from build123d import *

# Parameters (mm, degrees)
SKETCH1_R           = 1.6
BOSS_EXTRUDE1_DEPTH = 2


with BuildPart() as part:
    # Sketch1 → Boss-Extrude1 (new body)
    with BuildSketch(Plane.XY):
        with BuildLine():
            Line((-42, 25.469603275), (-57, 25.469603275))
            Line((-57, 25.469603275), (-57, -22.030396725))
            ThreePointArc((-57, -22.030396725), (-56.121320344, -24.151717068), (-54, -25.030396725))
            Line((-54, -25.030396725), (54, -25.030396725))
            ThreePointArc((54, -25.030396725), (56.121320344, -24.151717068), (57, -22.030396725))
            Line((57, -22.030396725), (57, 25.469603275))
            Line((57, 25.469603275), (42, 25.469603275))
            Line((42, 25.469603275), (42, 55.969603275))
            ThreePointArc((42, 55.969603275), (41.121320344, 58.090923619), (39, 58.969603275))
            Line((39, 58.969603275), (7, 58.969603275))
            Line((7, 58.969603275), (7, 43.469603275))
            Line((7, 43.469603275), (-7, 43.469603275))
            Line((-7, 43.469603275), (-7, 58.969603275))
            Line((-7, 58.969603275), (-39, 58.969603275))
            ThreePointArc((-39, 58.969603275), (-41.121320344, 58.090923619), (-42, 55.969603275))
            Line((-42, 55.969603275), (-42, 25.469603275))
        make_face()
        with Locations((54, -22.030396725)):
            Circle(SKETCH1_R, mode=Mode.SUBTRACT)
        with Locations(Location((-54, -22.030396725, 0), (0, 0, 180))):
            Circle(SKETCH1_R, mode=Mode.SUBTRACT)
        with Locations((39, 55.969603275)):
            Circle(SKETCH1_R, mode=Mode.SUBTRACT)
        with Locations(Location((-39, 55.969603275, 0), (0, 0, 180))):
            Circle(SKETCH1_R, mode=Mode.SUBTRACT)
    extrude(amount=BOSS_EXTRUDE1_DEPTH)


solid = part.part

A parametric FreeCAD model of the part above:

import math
import FreeCAD as App
import Part
import Sketcher

V = App.Vector
Q = App.Units.Quantity

doc = App.newDocument("Part")
params = doc.addObject("Spreadsheet::Sheet", "Params")
for row, (alias, value) in enumerate([
    ("sketch1_radius", "3 mm"),
    ("sketch1_diameter", "3.2 mm"),
    ("sketch1_width", "15 mm"),
    ("sketch1_width2", "108 mm"),
    ("sketch1_width3", "32 mm"),
    ("pad1_length", "2 mm"),
], start=1):
    params.set(f"A{row}", alias)
    params.set(f"B{row}", "=" + value)
    params.setAlias(f"B{row}", alias)

body = doc.addObject("PartDesign::Body", "Body")

sketch1 = body.newObject("Sketcher::SketchObject", "Sketch")
sketch1.AttachmentSupport = (doc.getObject("XY_Plane"), [""])
sketch1.MapMode = "FlatFace"
sketch1.addGeometry([
    Part.LineSegment(V(-42, 25.469603, 0), V(-57, 25.469603, 0)),
    Part.LineSegment(V(-57, 25.469603, 0), V(-57, -22.030397, 0)),
    Part.ArcOfCircle(Part.Circle(V(-54, -22.030397, 0), V(0, 0, 1), 3), math.radians(180), math.radians(270)),
    Part.LineSegment(V(-54, -25.030397, 0), V(54, -25.030397, 0)),
    Part.ArcOfCircle(Part.Circle(V(54, -22.030397, 0), V(0, 0, 1), 3), math.radians(-90), math.radians(0)),
    Part.LineSegment(V(57, -22.030397, 0), V(57, 25.469603, 0)),
    Part.LineSegment(V(57, 25.469603, 0), V(42, 25.469603, 0)),
    Part.LineSegment(V(42, 25.469603, 0), V(42, 55.969603, 0)),
    Part.ArcOfCircle(Part.Circle(V(39, 55.969603, 0), V(0, 0, 1), 3), math.radians(0), math.radians(90)),
    Part.LineSegment(V(39, 58.969603, 0), V(7, 58.969603, 0)),
    Part.LineSegment(V(7, 58.969603, 0), V(7, 43.469603, 0)),
    Part.LineSegment(V(7, 43.469603, 0), V(-7, 43.469603, 0)),
    Part.LineSegment(V(-7, 43.469603, 0), V(-7, 58.969603, 0)),
    Part.LineSegment(V(-7, 58.969603, 0), V(-39, 58.969603, 0)),
    Part.ArcOfCircle(Part.Circle(V(-39, 55.969603, 0), V(0, 0, 1), 3), math.radians(90), math.radians(180)),
    Part.LineSegment(V(-42, 55.969603, 0), V(-42, 25.469603, 0)),
    Part.Circle(V(-54, -22.030397, 0), V(0, 0, 1), 1.6),
    Part.Circle(V(54, -22.030397, 0), V(0, 0, 1), 1.6),
    Part.Circle(V(-39, 55.969603, 0), V(0, 0, 1), 1.6),
    Part.Circle(V(39, 55.969603, 0), V(0, 0, 1), 1.6),
], False)
sketch1.addConstraint([
    Sketcher.Constraint("Coincident", 0, 2, 1, 1),
    Sketcher.Constraint("Tangent", 1, 2, 2, 1),
    Sketcher.Constraint("Tangent", 2, 2, 3, 1),
    Sketcher.Constraint("Tangent", 3, 2, 4, 1),
    Sketcher.Constraint("Tangent", 4, 2, 5, 1),
    Sketcher.Constraint("Coincident", 5, 2, 6, 1),
    Sketcher.Constraint("Coincident", 6, 2, 7, 1),
    Sketcher.Constraint("Tangent", 7, 2, 8, 1),
    Sketcher.Constraint("Tangent", 8, 2, 9, 1),
    Sketcher.Constraint("Coincident", 9, 2, 10, 1),
    Sketcher.Constraint("Coincident", 10, 2, 11, 1),
    Sketcher.Constraint("Coincident", 11, 2, 12, 1),
    Sketcher.Constraint("Coincident", 12, 2, 13, 1),
    Sketcher.Constraint("Tangent", 13, 2, 14, 1),
    Sketcher.Constraint("Tangent", 14, 2, 15, 1),
    Sketcher.Constraint("Coincident", 15, 2, 0, 1),
    Sketcher.Constraint("Horizontal", 0),
    Sketcher.Constraint("Vertical", 1),
    Sketcher.Constraint("Horizontal", 3),
    Sketcher.Constraint("Vertical", 5),
    Sketcher.Constraint("Horizontal", 6),
    Sketcher.Constraint("Vertical", 7),
    Sketcher.Constraint("Horizontal", 9),
    Sketcher.Constraint("Vertical", 10),
    Sketcher.Constraint("Horizontal", 11),
    Sketcher.Constraint("Vertical", 12),
    Sketcher.Constraint("Horizontal", 13),
    Sketcher.Constraint("Vertical", 15),
    Sketcher.Constraint("Coincident", 16, 3, 2, 3),
    Sketcher.Constraint("Coincident", 17, 3, 4, 3),
    Sketcher.Constraint("Coincident", 18, 3, 14, 3),
    Sketcher.Constraint("Coincident", 19, 3, 8, 3),
    Sketcher.Constraint("Equal", 2, 4),
    Sketcher.Constraint("Equal", 4, 8),
    Sketcher.Constraint("Equal", 8, 14),
    Sketcher.Constraint("Equal", 16, 17),
    Sketcher.Constraint("Equal", 17, 18),
    Sketcher.Constraint("Equal", 18, 19),
    Sketcher.Constraint("Symmetric", 8, 3, 14, 3, -2),
    Sketcher.Constraint("Symmetric", 0, 2, 5, 2, -2),
    Sketcher.Constraint("Equal", 9, 13),
    Sketcher.Constraint("Radius", 2, Q("3 mm")),
    Sketcher.Constraint("Diameter", 16, Q("3.2 mm")),
    Sketcher.Constraint("DistanceX", 0, 2, 0, 1, Q("15 mm")),
    Sketcher.Constraint("DistanceX", 3, 1, 3, 2, Q("108 mm")),
    Sketcher.Constraint("DistanceX", 9, 2, 9, 1, Q("32 mm")),
    Sketcher.Constraint("DistanceY", 1, 2, 1, 1, Q("47.5 mm")),
    Sketcher.Constraint("DistanceY", 7, 1, 7, 2, Q("30.5 mm")),
    Sketcher.Constraint("DistanceY", 10, 2, 10, 1, Q("15.5 mm")),
    Sketcher.Constraint("DistanceY", 2, 3, -1, 1, Q("22.030397 mm")),
])
sketch1.setExpression("Constraints[41]", "Params.sketch1_radius")
sketch1.setExpression("Constraints[42]", "Params.sketch1_diameter")
sketch1.setExpression("Constraints[43]", "Params.sketch1_width")
sketch1.setExpression("Constraints[44]", "Params.sketch1_width2")
sketch1.setExpression("Constraints[45]", "Params.sketch1_width3")
pad1 = body.newObject("PartDesign::Pad", "Pad")
pad1.Profile = sketch1
pad1.setExpression("Length", "Params.pad1_length")

doc.recompute()
